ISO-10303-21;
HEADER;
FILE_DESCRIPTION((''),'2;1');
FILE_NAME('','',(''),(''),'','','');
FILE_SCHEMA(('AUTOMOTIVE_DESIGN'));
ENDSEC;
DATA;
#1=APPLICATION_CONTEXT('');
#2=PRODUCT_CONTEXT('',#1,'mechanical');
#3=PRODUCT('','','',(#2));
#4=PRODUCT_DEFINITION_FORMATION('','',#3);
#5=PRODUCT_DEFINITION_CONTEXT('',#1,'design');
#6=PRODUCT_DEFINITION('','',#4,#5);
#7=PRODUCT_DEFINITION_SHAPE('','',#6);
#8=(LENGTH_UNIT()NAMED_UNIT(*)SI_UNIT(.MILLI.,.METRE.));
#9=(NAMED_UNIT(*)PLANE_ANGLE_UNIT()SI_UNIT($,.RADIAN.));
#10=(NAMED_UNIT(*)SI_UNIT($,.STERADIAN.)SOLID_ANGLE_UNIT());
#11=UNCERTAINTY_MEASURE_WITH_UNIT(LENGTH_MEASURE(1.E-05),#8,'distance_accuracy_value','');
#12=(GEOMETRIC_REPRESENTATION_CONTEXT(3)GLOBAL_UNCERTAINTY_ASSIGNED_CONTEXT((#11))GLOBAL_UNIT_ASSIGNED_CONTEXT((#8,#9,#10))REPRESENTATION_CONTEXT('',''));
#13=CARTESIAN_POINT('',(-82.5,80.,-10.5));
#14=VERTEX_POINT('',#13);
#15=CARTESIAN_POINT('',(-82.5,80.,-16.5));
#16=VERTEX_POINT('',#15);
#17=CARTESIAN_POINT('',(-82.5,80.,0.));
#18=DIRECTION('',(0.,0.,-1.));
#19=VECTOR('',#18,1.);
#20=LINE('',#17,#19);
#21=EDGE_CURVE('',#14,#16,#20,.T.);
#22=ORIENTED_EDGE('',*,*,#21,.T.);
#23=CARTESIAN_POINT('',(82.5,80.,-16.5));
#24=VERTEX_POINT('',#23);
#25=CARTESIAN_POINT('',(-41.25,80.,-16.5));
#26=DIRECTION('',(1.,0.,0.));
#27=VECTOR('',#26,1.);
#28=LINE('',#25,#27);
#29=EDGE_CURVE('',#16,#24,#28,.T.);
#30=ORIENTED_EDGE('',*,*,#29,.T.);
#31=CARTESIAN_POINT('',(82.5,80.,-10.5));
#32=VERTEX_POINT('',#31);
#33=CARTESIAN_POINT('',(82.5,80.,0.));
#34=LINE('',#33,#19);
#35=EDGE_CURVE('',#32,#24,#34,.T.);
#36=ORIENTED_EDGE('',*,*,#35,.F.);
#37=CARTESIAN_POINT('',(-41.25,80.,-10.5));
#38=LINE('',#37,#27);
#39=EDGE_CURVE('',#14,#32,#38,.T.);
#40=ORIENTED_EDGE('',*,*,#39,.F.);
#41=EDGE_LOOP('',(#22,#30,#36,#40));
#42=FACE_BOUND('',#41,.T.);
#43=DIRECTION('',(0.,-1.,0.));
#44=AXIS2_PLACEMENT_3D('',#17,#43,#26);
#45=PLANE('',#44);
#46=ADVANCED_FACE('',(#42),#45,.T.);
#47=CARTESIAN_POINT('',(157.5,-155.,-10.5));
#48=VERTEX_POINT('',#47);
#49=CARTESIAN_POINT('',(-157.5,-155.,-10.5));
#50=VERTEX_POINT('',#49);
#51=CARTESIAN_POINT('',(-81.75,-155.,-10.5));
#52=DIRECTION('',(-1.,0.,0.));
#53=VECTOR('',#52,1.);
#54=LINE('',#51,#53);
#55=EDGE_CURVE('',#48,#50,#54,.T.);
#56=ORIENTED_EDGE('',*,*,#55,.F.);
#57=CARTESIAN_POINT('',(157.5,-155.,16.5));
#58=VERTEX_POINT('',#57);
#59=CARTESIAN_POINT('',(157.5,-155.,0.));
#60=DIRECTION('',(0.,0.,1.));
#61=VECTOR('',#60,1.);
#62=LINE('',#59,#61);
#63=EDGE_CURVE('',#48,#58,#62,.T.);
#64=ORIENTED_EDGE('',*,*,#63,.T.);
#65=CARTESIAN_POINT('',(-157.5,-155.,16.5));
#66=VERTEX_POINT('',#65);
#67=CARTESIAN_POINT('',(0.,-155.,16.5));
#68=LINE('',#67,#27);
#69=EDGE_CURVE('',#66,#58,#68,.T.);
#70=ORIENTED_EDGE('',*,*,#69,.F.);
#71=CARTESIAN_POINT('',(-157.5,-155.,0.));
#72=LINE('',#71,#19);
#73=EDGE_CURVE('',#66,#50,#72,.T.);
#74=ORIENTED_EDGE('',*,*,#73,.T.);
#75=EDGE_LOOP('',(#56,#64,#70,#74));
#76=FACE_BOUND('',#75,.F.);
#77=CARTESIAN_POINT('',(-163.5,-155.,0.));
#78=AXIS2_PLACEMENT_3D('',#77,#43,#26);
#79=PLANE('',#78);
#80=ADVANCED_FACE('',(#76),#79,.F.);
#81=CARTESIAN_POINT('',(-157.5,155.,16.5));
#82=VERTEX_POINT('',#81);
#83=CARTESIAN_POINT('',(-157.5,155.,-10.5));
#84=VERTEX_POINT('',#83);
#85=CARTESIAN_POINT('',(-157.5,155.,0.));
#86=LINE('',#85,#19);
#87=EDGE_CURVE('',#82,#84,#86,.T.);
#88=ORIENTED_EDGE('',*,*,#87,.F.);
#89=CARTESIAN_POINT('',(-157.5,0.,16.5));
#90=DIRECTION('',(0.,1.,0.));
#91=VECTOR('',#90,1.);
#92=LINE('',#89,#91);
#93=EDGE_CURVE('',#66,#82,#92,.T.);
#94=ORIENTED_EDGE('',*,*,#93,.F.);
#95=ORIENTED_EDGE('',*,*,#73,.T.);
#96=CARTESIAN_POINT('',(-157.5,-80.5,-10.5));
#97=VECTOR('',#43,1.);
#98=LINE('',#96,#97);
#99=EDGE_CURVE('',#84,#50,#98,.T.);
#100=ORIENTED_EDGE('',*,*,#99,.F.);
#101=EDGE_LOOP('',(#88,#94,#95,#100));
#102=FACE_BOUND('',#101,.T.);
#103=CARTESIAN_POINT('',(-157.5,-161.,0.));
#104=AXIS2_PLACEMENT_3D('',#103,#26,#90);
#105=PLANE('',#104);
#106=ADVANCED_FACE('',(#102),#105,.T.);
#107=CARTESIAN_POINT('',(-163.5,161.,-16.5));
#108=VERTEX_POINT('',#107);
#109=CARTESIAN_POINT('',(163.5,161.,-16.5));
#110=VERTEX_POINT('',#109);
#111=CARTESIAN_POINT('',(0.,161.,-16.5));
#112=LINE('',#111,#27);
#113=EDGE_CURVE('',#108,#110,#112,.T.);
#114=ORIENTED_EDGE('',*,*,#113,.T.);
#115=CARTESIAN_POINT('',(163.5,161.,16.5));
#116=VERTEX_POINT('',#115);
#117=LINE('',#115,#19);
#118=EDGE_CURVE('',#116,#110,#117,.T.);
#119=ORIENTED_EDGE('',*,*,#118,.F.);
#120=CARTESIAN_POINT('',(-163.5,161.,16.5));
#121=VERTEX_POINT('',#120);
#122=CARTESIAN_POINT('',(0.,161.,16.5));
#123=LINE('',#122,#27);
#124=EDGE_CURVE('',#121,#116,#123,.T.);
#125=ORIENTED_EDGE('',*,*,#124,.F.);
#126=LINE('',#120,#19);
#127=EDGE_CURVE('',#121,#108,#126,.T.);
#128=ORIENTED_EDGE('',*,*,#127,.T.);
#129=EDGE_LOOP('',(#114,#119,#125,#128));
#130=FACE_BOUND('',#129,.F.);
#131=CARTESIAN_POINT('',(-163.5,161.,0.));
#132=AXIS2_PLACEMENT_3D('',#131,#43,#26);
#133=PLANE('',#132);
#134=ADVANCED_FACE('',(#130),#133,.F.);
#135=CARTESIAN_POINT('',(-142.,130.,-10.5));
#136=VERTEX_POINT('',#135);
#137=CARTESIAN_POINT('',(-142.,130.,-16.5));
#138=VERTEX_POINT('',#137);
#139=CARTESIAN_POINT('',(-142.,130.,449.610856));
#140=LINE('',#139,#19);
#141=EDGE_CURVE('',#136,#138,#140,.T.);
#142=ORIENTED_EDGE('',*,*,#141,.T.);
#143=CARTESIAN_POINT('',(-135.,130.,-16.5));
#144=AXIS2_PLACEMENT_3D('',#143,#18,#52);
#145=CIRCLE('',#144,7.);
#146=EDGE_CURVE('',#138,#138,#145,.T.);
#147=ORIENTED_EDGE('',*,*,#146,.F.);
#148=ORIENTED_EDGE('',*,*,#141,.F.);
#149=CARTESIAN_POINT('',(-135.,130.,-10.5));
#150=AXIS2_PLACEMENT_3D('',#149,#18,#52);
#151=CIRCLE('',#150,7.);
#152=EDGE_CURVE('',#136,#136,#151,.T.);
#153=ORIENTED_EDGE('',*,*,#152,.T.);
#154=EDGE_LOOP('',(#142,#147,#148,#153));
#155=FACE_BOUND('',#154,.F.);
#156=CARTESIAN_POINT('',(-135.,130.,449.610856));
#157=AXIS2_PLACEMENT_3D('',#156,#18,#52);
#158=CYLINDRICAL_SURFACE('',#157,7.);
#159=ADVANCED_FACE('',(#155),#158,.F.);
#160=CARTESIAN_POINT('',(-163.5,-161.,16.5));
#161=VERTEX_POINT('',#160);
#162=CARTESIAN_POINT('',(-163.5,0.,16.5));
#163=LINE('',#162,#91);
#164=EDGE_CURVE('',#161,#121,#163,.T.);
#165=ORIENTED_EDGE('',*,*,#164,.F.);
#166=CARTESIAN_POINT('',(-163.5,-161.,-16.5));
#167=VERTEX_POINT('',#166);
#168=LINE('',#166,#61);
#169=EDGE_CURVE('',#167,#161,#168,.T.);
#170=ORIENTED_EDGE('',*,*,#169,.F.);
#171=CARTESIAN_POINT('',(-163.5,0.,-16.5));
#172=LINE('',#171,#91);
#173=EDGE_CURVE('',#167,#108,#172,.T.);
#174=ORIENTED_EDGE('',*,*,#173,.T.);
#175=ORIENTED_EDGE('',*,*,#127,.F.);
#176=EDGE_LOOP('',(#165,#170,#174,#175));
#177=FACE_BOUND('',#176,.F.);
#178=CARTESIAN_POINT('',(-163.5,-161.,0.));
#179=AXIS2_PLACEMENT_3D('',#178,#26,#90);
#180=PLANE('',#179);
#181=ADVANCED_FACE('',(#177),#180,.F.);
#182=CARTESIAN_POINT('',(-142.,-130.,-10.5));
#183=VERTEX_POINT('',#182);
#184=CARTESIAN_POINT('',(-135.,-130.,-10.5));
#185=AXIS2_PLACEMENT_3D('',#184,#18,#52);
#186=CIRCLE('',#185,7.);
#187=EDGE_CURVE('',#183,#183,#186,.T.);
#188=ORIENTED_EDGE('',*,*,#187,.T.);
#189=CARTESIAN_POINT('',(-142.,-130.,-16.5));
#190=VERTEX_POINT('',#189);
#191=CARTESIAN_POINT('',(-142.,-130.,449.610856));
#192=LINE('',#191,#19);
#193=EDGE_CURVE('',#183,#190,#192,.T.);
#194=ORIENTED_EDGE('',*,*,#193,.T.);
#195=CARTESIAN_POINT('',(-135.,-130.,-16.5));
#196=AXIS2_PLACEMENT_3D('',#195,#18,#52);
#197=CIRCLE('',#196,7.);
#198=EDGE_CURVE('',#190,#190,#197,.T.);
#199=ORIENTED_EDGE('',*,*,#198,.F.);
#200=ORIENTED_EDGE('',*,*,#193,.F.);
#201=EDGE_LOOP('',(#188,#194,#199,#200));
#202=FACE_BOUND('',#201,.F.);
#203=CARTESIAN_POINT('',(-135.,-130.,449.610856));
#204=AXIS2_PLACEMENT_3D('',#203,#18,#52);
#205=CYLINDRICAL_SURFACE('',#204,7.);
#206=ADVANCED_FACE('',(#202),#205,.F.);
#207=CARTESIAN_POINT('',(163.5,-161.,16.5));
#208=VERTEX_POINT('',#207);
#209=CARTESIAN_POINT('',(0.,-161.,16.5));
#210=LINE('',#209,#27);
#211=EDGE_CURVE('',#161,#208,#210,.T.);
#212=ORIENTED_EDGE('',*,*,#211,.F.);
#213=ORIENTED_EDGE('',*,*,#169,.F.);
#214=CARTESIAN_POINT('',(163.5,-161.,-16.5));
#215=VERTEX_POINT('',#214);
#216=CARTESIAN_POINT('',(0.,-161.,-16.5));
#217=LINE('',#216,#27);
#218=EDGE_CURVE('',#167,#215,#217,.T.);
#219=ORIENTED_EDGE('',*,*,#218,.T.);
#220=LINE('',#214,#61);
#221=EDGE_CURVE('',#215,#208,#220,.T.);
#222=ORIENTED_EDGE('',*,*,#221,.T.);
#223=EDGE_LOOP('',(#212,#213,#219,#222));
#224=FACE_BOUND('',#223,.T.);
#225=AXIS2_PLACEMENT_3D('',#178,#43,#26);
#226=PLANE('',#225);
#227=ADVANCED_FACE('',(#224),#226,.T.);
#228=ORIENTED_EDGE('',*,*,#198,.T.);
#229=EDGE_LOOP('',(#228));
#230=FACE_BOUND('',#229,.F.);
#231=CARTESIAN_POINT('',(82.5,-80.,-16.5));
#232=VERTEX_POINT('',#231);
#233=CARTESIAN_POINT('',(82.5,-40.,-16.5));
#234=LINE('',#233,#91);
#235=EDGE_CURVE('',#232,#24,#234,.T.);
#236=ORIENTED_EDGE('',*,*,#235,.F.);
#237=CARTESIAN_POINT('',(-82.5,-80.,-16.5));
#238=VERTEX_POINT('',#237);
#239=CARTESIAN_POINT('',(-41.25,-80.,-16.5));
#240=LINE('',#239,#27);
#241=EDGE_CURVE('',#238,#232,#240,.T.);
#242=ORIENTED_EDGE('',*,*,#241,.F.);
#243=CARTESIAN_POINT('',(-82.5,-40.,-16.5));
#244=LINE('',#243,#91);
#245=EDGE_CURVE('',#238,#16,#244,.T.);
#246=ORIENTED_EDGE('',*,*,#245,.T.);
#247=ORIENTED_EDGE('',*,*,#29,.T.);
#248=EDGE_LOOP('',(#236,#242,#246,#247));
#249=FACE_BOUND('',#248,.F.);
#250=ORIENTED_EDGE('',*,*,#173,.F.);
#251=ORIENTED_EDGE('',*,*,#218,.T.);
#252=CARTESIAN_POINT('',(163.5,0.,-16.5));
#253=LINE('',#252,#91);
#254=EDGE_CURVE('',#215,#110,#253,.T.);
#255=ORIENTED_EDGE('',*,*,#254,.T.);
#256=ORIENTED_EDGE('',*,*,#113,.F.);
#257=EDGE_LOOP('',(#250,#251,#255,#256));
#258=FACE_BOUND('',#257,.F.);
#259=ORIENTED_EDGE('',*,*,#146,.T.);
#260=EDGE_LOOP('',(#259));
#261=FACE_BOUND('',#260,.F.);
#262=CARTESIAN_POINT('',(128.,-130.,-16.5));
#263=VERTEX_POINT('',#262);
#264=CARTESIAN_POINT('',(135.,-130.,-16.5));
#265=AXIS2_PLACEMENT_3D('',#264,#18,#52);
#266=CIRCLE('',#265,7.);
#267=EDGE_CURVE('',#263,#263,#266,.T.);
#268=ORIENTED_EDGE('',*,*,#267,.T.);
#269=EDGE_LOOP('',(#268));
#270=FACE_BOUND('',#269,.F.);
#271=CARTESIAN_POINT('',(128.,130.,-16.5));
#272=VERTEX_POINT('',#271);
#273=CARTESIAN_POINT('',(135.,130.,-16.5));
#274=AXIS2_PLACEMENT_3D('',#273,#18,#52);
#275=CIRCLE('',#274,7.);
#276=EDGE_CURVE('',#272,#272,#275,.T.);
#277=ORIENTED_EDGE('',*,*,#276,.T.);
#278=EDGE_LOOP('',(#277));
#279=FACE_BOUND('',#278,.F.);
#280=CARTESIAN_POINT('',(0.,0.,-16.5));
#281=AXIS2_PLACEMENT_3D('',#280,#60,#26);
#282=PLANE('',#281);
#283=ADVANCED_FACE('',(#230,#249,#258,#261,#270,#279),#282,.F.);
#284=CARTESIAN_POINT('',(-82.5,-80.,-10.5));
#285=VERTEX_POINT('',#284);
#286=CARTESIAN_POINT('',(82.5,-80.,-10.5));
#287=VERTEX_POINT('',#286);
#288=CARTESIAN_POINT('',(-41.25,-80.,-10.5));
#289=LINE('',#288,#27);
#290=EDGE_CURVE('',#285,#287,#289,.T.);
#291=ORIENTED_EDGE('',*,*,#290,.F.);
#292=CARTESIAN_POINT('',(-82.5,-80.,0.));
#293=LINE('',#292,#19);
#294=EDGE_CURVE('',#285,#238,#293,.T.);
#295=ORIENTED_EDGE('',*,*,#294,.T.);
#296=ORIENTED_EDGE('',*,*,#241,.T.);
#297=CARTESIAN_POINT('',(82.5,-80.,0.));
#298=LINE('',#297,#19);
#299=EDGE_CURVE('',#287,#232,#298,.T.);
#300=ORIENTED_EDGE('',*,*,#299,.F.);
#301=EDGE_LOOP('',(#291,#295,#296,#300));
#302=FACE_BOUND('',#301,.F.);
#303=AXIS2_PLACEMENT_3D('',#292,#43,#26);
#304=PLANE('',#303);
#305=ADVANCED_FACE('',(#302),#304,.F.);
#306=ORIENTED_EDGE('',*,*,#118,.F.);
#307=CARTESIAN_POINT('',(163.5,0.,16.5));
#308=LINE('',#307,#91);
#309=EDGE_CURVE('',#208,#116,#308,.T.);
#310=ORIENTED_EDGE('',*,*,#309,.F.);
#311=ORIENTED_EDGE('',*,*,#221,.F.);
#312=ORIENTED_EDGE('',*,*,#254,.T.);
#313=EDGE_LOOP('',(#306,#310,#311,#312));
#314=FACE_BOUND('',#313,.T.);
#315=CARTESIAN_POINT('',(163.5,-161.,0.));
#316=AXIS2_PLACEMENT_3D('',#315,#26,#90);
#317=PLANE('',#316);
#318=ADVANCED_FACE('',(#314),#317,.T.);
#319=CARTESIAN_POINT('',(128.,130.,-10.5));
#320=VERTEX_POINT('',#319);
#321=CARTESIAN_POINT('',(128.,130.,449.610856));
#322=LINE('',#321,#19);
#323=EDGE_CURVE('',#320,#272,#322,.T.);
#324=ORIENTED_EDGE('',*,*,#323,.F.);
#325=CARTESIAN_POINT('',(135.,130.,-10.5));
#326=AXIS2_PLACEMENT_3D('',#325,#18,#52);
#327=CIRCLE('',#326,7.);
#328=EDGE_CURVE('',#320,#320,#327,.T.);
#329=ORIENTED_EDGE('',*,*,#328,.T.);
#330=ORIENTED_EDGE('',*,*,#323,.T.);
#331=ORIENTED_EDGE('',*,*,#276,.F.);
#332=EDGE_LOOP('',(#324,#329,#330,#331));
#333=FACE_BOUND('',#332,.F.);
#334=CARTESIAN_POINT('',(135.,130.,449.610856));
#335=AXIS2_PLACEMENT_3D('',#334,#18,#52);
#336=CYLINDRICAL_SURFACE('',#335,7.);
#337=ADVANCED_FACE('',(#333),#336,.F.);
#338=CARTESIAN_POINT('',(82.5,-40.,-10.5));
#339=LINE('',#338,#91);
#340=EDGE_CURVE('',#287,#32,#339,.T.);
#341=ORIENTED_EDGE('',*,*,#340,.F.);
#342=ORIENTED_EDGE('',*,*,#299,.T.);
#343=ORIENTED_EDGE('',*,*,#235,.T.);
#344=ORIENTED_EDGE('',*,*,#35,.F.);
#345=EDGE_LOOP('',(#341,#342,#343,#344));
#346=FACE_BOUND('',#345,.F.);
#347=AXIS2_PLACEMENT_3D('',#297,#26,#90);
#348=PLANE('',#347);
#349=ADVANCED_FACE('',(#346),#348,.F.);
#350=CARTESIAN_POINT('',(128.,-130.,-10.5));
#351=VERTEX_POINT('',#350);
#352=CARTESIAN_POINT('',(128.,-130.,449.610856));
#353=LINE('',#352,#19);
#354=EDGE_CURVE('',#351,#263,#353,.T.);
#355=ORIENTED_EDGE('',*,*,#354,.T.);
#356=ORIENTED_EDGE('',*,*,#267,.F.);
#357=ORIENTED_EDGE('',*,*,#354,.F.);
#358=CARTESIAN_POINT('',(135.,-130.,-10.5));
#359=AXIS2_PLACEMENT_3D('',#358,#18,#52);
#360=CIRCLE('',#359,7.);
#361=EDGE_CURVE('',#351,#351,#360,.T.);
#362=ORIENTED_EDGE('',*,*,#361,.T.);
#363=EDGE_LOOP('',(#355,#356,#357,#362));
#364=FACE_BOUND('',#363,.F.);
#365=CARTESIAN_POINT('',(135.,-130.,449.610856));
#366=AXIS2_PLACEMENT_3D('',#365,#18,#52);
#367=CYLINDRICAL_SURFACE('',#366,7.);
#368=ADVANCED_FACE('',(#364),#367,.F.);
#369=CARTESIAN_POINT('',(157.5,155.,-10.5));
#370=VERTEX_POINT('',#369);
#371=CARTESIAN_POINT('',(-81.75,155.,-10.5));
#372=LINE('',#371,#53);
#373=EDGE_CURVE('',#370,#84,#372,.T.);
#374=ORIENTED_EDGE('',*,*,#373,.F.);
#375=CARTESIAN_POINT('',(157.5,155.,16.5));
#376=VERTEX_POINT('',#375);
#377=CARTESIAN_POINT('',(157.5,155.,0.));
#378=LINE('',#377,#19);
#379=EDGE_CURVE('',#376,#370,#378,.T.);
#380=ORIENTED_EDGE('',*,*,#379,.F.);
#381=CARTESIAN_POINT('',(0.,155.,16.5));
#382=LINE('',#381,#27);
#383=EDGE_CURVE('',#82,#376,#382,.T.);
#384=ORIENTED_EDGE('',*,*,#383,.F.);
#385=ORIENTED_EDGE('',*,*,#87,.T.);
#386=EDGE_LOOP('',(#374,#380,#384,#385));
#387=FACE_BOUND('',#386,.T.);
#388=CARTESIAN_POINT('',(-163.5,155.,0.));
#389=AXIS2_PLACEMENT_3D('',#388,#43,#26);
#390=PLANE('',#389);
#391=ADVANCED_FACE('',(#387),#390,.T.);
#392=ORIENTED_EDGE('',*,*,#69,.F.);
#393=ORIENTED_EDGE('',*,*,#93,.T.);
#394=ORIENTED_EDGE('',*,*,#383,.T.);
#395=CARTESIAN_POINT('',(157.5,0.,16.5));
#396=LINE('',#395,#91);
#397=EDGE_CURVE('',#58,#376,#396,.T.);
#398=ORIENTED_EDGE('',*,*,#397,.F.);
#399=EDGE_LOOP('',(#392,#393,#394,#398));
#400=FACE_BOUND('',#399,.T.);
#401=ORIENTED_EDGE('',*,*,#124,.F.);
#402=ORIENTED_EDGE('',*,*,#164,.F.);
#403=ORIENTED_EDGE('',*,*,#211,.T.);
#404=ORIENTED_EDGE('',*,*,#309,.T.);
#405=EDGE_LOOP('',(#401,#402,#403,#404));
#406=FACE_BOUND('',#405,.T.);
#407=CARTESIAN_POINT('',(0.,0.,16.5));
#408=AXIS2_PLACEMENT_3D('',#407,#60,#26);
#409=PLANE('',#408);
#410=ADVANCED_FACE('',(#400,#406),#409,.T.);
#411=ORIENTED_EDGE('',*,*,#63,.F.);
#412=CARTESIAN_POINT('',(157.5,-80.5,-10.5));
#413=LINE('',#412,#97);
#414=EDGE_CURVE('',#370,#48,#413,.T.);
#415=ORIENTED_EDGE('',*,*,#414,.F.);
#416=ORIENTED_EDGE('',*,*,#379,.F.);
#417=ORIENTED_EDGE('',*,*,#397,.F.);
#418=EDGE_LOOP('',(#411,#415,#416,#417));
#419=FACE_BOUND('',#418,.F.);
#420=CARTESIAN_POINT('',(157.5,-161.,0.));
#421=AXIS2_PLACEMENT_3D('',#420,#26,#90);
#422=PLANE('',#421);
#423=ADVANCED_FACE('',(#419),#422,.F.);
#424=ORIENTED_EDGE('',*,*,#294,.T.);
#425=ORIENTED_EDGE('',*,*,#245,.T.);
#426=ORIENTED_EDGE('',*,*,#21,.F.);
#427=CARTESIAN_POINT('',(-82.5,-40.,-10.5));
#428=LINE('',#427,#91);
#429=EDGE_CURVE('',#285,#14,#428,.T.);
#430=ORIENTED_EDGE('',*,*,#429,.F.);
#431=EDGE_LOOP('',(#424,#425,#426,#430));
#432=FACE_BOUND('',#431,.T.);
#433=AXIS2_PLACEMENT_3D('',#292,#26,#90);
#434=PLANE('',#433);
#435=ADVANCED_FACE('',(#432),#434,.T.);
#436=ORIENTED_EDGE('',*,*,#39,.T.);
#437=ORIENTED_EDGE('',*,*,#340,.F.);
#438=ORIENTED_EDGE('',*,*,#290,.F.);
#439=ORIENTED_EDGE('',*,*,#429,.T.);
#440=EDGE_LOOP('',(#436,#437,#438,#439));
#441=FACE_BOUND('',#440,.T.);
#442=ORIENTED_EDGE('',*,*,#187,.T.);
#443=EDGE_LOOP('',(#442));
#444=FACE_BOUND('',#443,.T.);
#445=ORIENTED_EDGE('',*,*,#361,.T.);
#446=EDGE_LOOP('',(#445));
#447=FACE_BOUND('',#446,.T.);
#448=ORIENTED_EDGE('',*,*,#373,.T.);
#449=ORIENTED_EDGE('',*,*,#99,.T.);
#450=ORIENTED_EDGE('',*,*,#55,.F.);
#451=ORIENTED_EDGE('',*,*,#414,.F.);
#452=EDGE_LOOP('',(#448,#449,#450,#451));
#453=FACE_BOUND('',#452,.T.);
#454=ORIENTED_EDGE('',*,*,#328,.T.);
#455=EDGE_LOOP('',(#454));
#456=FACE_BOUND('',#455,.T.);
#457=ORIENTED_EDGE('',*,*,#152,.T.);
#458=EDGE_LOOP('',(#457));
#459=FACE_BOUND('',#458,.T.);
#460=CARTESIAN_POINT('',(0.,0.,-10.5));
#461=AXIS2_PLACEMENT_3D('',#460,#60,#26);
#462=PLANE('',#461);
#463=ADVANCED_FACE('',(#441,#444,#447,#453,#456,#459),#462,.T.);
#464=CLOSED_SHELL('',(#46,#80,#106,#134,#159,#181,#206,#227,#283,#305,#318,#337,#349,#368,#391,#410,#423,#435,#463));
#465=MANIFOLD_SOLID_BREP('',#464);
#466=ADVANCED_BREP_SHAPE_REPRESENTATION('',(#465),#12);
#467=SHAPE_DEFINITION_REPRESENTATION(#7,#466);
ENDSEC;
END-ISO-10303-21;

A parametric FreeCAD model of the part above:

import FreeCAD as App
import Part
import Sketcher
from FreeCAD import Vector


def faces_at(feature, points):
    """Names of the faces that lie closest to the given points."""
    faces = feature.Shape.Faces
    near = lambda p: min(range(len(faces)), key=lambda i: faces[i].distToShape(Part.Vertex(*p))[0])
    return sorted({f"Face{near(p) + 1}" for p in points})


def add_polygon(sketch, points):
    """Adds a closed chain of lines whose ends are joined by coincident constraints."""
    first, n = sketch.GeometryCount, len(points)
    for a, b in zip(points, points[1:] + points[:1]):
        sketch.addGeometry(Part.LineSegment(App.Vector(*a, 0), App.Vector(*b, 0)), False)
    for i in range(n):
        sketch.addConstraint(Sketcher.Constraint("Coincident", first + i, 2, first + (i + 1) % n, 1))

doc = App.newDocument("Part")
body = doc.addObject("PartDesign::Body", "Body")

# Sketch on XY plane
sketch1 = doc.addObject("Sketcher::SketchObject", "Sketch")
body.addObject(sketch1)
sketch1.AttachmentSupport = (doc.XY_Plane, [""])
sketch1.MapMode = "FlatFace"
add_polygon(sketch1, [(-164, 161), (-164, -161), (164, -161), (164, 161)])  # lines 0-3
sketch1.addConstraint(Sketcher.Constraint("Vertical", 0))
sketch1.addConstraint(Sketcher.Constraint("Horizontal", 1))
sketch1.addConstraint(Sketcher.Constraint("Vertical", 2))
sketch1.addConstraint(Sketcher.Constraint("Horizontal", 3))
sketch1.addConstraint(Sketcher.Constraint("Symmetric", 0, 2, 2, 2, -1, 1))
sketch1.addConstraint(Sketcher.Constraint("DistanceX", 1, 1, 1, 2, 327.0))
sketch1.addConstraint(Sketcher.Constraint("DistanceY", 0, 2, 0, 1, 322.0))
pad1 = doc.addObject("PartDesign::Pad", "Pad")
body.addObject(pad1)
pad1.Profile = sketch1
pad1.Length = 33
pad1.Midplane = True
doc.recompute()

thickness = doc.addObject("PartDesign::Thickness", "Thickness")
body.addObject(thickness)
thickness.Base = (pad1, faces_at(pad1, [(0, 0, 16.5)]))
thickness.Value = 6
thickness.Reversed = True
thickness.Join = "Arc"

# Sketch on XY plane
sketch2 = doc.addObject("Sketcher::SketchObject", "Sketch001")
body.addObject(sketch2)
sketch2.AttachmentSupport = (doc.XY_Plane, [""])
sketch2.MapMode = "FlatFace"
add_polygon(sketch2, [(-82, 80), (-82, -80), (82, -80), (82, 80)])  # lines 0-3
sketch2.addConstraint(Sketcher.Constraint("Vertical", 0))
sketch2.addConstraint(Sketcher.Constraint("Horizontal", 1))
sketch2.addConstraint(Sketcher.Constraint("Vertical", 2))
sketch2.addConstraint(Sketcher.Constraint("Horizontal", 3))
sketch2.addConstraint(Sketcher.Constraint("Symmetric", 0, 2, 2, 2, -1, 1))
sketch2.addConstraint(Sketcher.Constraint("DistanceX", 1, 1, 1, 2, 165.0))
sketch2.addConstraint(Sketcher.Constraint("DistanceY", 0, 2, 0, 1, 160.0))
pocket1 = doc.addObject("PartDesign::Pocket", "Pocket")
body.addObject(pocket1)
pocket1.Profile = sketch2
pocket1.Type = "ThroughAll"

# Sketch on XY plane
sketch3 = doc.addObject("Sketcher::SketchObject", "Sketch002")
body.addObject(sketch3)
sketch3.AttachmentSupport = (doc.XY_Plane, [""])
sketch3.MapMode = "FlatFace"
sketch3.AttachmentOffset = App.Placement(Vector(0, 0, -10.5), App.Rotation())
sketch3.addGeometry(Part.Circle(Vector(-135, 130, 0), Vector(0, 0, 1), 7), False)
sketch3.addGeometry(Part.Circle(Vector(135, 130, 0), Vector(0, 0, 1), 7), False)
sketch3.addGeometry(Part.Circle(Vector(135, -130, 0), Vector(0, 0, 1), 7), False)
sketch3.addGeometry(Part.Circle(Vector(-135, -130, 0), Vector(0, 0, 1), 7), False)
sketch3.addConstraint(Sketcher.Constraint("Equal", 0, 1))
sketch3.addConstraint(Sketcher.Constraint("Equal", 1, 2))
sketch3.addConstraint(Sketcher.Constraint("Equal", 2, 3))
sketch3.addConstraint(Sketcher.Constraint("Symmetric", 0, 3, 2, 3, -1, 1))
sketch3.addConstraint(Sketcher.Constraint("Symmetric", 1, 3, 3, 3, -1, 1))
sketch3.addConstraint(Sketcher.Constraint("Symmetric", 0, 3, 1, 3, -2))
sketch3.addConstraint(Sketcher.Constraint("Diameter", 0, 14.0))
sketch3.addConstraint(Sketcher.Constraint("DistanceX", 0, 3, -1, 1, 135.0))
sketch3.addConstraint(Sketcher.Constraint("DistanceY", -1, 1, 0, 3, 130.0))
doc.recompute()
hole = doc.addObject("PartDesign::Hole", "Hole")
body.addObject(hole)
hole.Profile = sketch3
hole.ThreadType = "None"
hole.Diameter = 14
hole.DepthType = "ThroughAll"

doc.recompute()
